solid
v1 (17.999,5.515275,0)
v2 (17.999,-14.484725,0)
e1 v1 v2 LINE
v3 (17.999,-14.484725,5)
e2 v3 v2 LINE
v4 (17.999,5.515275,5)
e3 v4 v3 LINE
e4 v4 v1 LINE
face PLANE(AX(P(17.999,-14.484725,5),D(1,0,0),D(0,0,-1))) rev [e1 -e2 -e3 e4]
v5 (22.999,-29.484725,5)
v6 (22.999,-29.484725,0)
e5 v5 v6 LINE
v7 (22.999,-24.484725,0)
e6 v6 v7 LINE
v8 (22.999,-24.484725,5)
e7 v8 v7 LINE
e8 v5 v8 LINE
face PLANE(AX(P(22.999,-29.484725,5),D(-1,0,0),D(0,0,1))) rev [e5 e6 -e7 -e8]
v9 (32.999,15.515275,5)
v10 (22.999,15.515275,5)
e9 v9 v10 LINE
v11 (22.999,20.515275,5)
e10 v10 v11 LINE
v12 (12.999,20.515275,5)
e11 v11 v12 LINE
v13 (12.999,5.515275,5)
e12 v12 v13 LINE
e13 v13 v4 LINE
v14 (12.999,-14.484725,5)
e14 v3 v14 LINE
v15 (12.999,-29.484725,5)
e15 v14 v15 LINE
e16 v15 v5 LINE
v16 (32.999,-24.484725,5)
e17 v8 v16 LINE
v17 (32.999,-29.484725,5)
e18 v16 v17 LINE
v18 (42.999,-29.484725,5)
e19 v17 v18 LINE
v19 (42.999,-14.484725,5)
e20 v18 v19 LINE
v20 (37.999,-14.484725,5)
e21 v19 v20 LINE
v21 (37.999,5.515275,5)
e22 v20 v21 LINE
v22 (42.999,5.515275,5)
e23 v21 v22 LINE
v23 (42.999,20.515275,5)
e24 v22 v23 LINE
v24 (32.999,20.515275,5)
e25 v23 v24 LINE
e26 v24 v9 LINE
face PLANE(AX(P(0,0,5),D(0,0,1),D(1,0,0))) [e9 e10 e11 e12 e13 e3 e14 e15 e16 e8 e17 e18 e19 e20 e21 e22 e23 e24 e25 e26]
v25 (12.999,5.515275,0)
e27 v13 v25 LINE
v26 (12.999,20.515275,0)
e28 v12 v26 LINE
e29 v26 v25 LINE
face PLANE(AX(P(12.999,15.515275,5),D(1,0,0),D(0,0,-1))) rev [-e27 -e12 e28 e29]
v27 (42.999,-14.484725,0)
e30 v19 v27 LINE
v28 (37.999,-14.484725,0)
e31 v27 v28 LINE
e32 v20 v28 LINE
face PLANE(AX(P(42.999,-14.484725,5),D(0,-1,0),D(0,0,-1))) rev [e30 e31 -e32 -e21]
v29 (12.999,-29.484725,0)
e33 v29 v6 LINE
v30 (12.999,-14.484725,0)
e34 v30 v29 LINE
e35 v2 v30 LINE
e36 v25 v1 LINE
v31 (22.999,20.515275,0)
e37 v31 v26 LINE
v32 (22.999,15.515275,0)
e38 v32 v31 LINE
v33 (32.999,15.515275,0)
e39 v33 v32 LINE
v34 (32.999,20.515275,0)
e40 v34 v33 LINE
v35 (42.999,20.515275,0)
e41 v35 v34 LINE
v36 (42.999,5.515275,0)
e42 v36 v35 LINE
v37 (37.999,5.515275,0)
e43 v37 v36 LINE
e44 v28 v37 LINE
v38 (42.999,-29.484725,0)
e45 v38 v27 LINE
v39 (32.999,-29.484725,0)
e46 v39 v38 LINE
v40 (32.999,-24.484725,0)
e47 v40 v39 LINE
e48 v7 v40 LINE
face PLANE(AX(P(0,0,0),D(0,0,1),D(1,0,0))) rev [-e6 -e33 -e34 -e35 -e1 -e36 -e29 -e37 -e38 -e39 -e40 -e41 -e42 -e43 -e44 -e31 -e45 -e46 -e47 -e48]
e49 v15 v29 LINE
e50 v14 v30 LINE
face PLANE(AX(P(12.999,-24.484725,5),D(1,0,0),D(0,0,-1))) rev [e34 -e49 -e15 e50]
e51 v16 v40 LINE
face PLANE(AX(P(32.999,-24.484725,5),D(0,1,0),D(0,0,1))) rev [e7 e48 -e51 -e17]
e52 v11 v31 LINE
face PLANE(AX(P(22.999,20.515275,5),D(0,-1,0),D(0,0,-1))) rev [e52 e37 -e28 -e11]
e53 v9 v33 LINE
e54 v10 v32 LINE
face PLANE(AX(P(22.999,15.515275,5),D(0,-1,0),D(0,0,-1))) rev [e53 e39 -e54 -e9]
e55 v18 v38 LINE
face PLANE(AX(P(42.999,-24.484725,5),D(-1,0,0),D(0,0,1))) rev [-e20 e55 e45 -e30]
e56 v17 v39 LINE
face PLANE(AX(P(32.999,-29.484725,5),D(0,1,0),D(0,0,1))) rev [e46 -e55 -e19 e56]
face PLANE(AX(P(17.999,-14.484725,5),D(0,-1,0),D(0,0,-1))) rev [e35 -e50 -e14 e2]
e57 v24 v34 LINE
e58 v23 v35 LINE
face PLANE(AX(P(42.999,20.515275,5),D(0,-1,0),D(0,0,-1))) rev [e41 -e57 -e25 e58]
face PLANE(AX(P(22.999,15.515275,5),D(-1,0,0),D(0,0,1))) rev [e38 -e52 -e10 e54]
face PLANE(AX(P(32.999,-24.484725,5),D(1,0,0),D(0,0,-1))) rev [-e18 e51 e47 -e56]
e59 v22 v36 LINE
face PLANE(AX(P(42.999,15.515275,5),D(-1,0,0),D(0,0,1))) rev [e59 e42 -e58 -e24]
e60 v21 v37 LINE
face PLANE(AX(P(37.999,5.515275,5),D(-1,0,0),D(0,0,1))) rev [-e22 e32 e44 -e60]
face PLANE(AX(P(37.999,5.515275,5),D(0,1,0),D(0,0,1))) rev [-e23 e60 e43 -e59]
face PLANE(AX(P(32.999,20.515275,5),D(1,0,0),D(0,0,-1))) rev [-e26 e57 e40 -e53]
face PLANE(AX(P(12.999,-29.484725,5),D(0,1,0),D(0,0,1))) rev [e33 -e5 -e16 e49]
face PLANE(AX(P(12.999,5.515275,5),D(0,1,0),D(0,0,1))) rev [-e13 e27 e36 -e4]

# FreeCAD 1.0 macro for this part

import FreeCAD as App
import Part
import Sketcher

V = App.Vector

doc = App.newDocument("Part")
body = doc.addObject("PartDesign::Body", "Body")

sketch1 = body.newObject("Sketcher::SketchObject", "Sketch")
sketch1.AttachmentSupport = (doc.getObject("XY_Plane"), [""])
sketch1.MapMode = "FlatFace"
sketch1.addGeometry([
    Part.LineSegment(V(13, 6, 0), V(18, 6, 0)),
    Part.LineSegment(V(18, 6, 0), V(18, -14, 0)),
    Part.LineSegment(V(18, -14, 0), V(13, -14, 0)),
    Part.LineSegment(V(13, -14, 0), V(13, -29, 0)),
    Part.LineSegment(V(13, -29, 0), V(23, -29, 0)),
    Part.LineSegment(V(23, -29, 0), V(23, -24, 0)),
    Part.LineSegment(V(23, -24, 0), V(33, -24, 0)),
    Part.LineSegment(V(33, -24, 0), V(33, -29, 0)),
    Part.LineSegment(V(33, -29, 0), V(43, -29, 0)),
    Part.LineSegment(V(43, -29, 0), V(43, -14, 0)),
    Part.LineSegment(V(43, -14, 0), V(38, -14, 0)),
    Part.LineSegment(V(38, -14, 0), V(38, 6, 0)),
    Part.LineSegment(V(38, 6, 0), V(43, 6, 0)),
    Part.LineSegment(V(43, 6, 0), V(43, 21, 0)),
    Part.LineSegment(V(43, 21, 0), V(33, 21, 0)),
    Part.LineSegment(V(33, 21, 0), V(33, 16, 0)),
    Part.LineSegment(V(33, 16, 0), V(23, 16, 0)),
    Part.LineSegment(V(23, 16, 0), V(23, 21, 0)),
    Part.LineSegment(V(23, 21, 0), V(13, 21, 0)),
    Part.LineSegment(V(13, 21, 0), V(13, 6, 0)),
], False)
sketch1.addConstraint([
    Sketcher.Constraint("Coincident", 0, 2, 1, 1),
    Sketcher.Constraint("Coincident", 1, 2, 2, 1),
    Sketcher.Constraint("Coincident", 2, 2, 3, 1),
    Sketcher.Constraint("Coincident", 3, 2, 4, 1),
    Sketcher.Constraint("Coincident", 4, 2, 5, 1),
    Sketcher.Constraint("Coincident", 5, 2, 6, 1),
    Sketcher.Constraint("Coincident", 6, 2, 7, 1),
    Sketcher.Constraint("Coincident", 7, 2, 8, 1),
    Sketcher.Constraint("Coincident", 8, 2, 9, 1),
    Sketcher.Constraint("Coincident", 9, 2, 10, 1),
    Sketcher.Constraint("Coincident", 10, 2, 11, 1),
    Sketcher.Constraint("Coincident", 11, 2, 12, 1),
    Sketcher.Constraint("Coincident", 12, 2, 13, 1),
    Sketcher.Constraint("Coincident", 13, 2, 14, 1),
    Sketcher.Constraint("Coincident", 14, 2, 15, 1),
    Sketcher.Constraint("Coincident", 15, 2, 16, 1),
    Sketcher.Constraint("Coincident", 16, 2, 17, 1),
    Sketcher.Constraint("Coincident", 17, 2, 18, 1),
    Sketcher.Constraint("Coincident", 18, 2, 19, 1),
    Sketcher.Constraint("Coincident", 19, 2, 0, 1),
    Sketcher.Constraint("Horizontal", 0),
    Sketcher.Constraint("Vertical", 1),
    Sketcher.Constraint("Horizontal", 2),
    Sketcher.Constraint("Vertical", 3),
    Sketcher.Constraint("Horizontal", 4),
    Sketcher.Constraint("Vertical", 5),
    Sketcher.Constraint("Horizontal", 6),
    Sketcher.Constraint("Vertical", 7),
    Sketcher.Constraint("Horizontal", 8),
    Sketcher.Constraint("Vertical", 9),
    Sketcher.Constraint("Horizontal", 10),
    Sketcher.Constraint("Vertical", 11),
    Sketcher.Constraint("Horizontal", 12),
    Sketcher.Constraint("Vertical", 13),
    Sketcher.Constraint("Horizontal", 14),
    Sketcher.Constraint("Vertical", 15),
    Sketcher.Constraint("Horizontal", 16),
    Sketcher.Constraint("Vertical", 17),
    Sketcher.Constraint("Horizontal", 18),
    Sketcher.Constraint("Vertical", 19),
    Sketcher.Constraint("Horizontal", 4, 2, 7, 2),
    Sketcher.Constraint("Horizontal", 2, 2, 9, 2),
    Sketcher.Constraint("Horizontal", 0, 2, 11, 2),
    Sketcher.Constraint("Horizontal", 14, 2, 17, 2),
    Sketcher.Constraint("Vertical", 9, 2, 12, 2),
    Sketcher.Constraint("Vertical", 7, 2, 14, 2),
    Sketcher.Constraint("Vertical", 5, 2, 16, 2),
    Sketcher.Constraint("Vertical", 3, 2, 18, 2),
    Sketcher.Constraint("Equal", 4, 6),
    Sketcher.Constraint("Equal", 6, 8),
    Sketcher.Constraint("Equal", 2, 10),
    Sketcher.Constraint("Equal", 12, 5),
    Sketcher.Constraint("Equal", 9, 13),
    Sketcher.Constraint("Equal", 7, 15),
    Sketcher.Constraint("DistanceX", 0, 1, 0, 2, 5.0),
    Sketcher.Constraint("DistanceX", 4, 1, 4, 2, 10.0),
    Sketcher.Constraint("DistanceY", 1, 2, 1, 1, 20.0),
    Sketcher.Constraint("DistanceY", 3, 2, 3, 1, 15.0),
    Sketcher.Constraint("DistanceX", -1, 1, 0, 2, 17.999),
    Sketcher.Constraint("DistanceY", -1, 1, 0, 2, 5.515275),
])
pad1 = body.newObject("PartDesign::Pad", "Pad")
pad1.Profile = sketch1
pad1.Length = 5

doc.recompute()
